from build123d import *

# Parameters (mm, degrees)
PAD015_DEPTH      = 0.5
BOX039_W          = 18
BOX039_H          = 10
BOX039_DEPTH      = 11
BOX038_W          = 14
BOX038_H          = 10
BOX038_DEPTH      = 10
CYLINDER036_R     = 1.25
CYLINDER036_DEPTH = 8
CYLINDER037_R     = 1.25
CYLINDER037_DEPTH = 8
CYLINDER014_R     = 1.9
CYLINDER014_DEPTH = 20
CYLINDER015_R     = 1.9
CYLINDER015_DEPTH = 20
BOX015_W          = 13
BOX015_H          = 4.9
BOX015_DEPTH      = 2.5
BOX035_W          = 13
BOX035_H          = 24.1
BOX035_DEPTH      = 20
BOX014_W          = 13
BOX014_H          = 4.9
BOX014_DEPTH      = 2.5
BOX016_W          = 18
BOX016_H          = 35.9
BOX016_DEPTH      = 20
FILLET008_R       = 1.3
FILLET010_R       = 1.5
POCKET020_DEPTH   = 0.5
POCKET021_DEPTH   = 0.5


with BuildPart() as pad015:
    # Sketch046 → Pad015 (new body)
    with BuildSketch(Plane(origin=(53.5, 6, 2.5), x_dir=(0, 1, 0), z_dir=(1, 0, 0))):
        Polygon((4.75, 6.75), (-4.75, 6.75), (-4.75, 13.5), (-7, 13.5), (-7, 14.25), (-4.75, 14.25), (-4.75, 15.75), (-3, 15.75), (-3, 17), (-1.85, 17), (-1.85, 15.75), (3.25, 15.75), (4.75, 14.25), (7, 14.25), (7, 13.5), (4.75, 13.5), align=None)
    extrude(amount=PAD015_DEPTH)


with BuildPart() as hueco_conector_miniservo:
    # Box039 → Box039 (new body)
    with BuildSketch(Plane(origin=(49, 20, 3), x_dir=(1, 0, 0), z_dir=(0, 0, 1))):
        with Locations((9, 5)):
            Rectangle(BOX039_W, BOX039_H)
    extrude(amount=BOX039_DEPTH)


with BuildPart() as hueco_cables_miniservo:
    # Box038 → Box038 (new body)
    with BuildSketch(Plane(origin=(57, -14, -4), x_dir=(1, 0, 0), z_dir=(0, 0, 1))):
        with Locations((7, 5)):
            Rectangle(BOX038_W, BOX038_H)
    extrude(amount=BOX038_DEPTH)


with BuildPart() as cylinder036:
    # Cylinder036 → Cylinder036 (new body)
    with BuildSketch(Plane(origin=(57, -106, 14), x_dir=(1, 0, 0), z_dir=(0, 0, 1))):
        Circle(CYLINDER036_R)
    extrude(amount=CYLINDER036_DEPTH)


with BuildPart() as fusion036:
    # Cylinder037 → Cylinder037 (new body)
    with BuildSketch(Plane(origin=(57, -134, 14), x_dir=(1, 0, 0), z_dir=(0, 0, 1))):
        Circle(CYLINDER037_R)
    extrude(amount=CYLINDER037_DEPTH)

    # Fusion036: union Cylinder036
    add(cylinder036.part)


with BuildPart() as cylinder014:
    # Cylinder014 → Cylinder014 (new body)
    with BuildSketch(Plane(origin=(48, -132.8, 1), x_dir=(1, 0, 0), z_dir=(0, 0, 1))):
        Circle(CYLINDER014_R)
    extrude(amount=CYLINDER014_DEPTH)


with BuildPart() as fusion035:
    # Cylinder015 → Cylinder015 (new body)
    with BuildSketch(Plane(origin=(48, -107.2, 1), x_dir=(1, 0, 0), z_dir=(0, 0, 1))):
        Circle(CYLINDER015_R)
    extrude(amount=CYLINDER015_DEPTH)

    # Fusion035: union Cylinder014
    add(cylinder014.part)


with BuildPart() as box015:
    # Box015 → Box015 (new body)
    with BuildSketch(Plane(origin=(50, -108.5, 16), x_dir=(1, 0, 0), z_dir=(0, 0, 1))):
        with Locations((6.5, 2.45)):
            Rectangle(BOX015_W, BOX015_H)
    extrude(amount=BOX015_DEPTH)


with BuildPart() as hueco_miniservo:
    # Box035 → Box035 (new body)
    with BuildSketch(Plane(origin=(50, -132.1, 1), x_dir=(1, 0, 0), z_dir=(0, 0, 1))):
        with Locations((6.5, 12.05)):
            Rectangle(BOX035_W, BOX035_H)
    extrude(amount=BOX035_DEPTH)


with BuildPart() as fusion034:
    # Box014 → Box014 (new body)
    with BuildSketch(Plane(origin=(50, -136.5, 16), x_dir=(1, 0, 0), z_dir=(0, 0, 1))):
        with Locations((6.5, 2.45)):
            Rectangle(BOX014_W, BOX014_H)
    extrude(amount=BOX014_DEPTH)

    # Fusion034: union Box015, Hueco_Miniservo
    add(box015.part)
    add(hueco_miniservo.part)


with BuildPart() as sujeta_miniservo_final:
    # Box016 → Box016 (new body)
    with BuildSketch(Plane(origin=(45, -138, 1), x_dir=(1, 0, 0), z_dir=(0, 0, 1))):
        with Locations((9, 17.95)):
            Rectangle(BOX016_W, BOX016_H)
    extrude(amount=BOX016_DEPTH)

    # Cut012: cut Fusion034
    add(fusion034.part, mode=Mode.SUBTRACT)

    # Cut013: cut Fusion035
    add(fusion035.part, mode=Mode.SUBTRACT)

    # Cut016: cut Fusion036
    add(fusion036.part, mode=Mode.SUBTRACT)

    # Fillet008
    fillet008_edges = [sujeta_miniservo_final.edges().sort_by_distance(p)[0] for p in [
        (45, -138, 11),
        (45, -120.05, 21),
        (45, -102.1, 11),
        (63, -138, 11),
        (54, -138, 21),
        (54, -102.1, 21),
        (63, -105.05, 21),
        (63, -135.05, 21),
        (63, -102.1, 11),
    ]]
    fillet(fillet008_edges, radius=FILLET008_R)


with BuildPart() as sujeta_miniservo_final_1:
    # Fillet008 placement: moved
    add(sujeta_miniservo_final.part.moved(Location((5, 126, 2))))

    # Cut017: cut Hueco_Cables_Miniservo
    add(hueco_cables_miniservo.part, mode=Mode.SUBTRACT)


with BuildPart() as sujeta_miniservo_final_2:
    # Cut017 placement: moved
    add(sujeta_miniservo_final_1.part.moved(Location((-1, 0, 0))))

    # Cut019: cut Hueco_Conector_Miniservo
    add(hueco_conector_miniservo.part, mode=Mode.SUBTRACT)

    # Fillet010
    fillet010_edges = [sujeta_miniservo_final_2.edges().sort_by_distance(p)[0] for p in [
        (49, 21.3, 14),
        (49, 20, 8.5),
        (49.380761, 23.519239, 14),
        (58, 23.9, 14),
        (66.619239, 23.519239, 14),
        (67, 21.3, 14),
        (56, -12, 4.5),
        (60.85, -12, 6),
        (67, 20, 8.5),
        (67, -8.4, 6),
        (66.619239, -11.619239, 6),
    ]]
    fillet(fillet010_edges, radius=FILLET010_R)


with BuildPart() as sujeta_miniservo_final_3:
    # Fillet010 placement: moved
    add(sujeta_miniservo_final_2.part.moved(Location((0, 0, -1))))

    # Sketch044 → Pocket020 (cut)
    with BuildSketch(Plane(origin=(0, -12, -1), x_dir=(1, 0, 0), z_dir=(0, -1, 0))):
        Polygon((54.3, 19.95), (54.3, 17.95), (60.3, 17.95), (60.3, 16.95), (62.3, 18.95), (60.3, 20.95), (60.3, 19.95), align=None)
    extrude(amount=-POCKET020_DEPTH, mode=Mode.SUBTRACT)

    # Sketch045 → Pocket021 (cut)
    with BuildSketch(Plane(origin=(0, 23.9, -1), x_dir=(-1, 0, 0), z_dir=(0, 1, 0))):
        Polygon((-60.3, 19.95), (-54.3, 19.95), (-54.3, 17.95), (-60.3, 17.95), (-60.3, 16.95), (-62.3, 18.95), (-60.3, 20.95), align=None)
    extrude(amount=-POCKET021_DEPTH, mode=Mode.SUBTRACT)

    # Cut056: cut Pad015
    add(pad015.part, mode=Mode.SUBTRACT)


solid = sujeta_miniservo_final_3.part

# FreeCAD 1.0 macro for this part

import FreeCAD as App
import Part
import Sketcher

V = App.Vector
Q = App.Units.Quantity


def edges_at(feature, points):
    """Names of the edges that pass closest to the given points."""
    edges = feature.Shape.Edges
    near = lambda p: min(range(len(edges)), key=lambda i: edges[i].distToShape(Part.Vertex(*p))[0])
    return sorted({f"Edge{near(p) + 1}" for p in points})

doc = App.newDocument("Part")
body = doc.addObject("PartDesign::Body", "Body")

# Sketch on YZ plane
sketch1 = body.newObject("Sketcher::SketchObject", "Sketch")
sketch1.AttachmentSupport = (doc.getObject("YZ_Plane"), [""])
sketch1.MapMode = "FlatFace"
sketch1.AttachmentOffset = App.Placement(V(0, 0, 53.5), App.Rotation())
sketch1.addGeometry([
    Part.LineSegment(V(1.2, 9.2, 0), V(10.8, 9.2, 0)),  # 0
    Part.LineSegment(V(10.8, 9.2, 0), V(10.8, 16, 0)),  # 1
    Part.LineSegment(V(10.8, 16, 0), V(13, 16, 0)),  # 2
    Part.LineSegment(V(13, 16, 0), V(13, 16.8, 0)),  # 3
    Part.LineSegment(V(13, 16.8, 0), V(10.8, 16.8, 0)),  # 4
    Part.LineSegment(V(10.8, 16.8, 0), V(9.2, 18.2, 0)),  # 5
    Part.LineSegment(V(9.2, 18.2, 0), V(4.2, 18.2, 0)),  # 6
    Part.LineSegment(V(4.2, 18.2, 0), V(4.2, 19.5, 0)),  # 7
    Part.LineSegment(V(4.2, 19.5, 0), V(3, 19.5, 0)),  # 8
    Part.LineSegment(V(3, 19.5, 0), V(3, 18.2, 0)),  # 9
    Part.LineSegment(V(3, 18.2, 0), V(1.2, 18.2, 0)),  # 10
    Part.LineSegment(V(1.2, 18.2, 0), V(1.2, 16.8, 0)),  # 11
    Part.LineSegment(V(1.2, 16.8, 0), V(-1, 16.8, 0)),  # 12
    Part.LineSegment(V(-1, 16.8, 0), V(-1, 16, 0)),  # 13
    Part.LineSegment(V(-1, 16, 0), V(1.2, 16, 0)),  # 14
    Part.LineSegment(V(1.2, 16, 0), V(1.2, 9.2, 0)),  # 15
], False)
sketch1.addConstraint([
    Sketcher.Constraint("Coincident", 0, 2, 1, 1),
    Sketcher.Constraint("Coincident", 1, 2, 2, 1),
    Sketcher.Constraint("Coincident", 2, 2, 3, 1),
    Sketcher.Constraint("Coincident", 3, 2, 4, 1),
    Sketcher.Constraint("Coincident", 4, 2, 5, 1),
    Sketcher.Constraint("Coincident", 5, 2, 6, 1),
    Sketcher.Constraint("Coincident", 6, 2, 7, 1),
    Sketcher.Constraint("Coincident", 7, 2, 8, 1),
    Sketcher.Constraint("Coincident", 8, 2, 9, 1),
    Sketcher.Constraint("Coincident", 9, 2, 10, 1),
    Sketcher.Constraint("Coincident", 10, 2, 11, 1),
    Sketcher.Constraint("Coincident", 11, 2, 12, 1),
    Sketcher.Constraint("Coincident", 12, 2, 13, 1),
    Sketcher.Constraint("Coincident", 13, 2, 14, 1),
    Sketcher.Constraint("Coincident", 14, 2, 15, 1),
    Sketcher.Constraint("Coincident", 15, 2, 0, 1),
    Sketcher.Constraint("Horizontal", 0),
    Sketcher.Constraint("Vertical", 1),
    Sketcher.Constraint("Horizontal", 2),
    Sketcher.Constraint("Vertical", 3),
    Sketcher.Constraint("Horizontal", 4),
    Sketcher.Constraint("Horizontal", 6),
    Sketcher.Constraint("Vertical", 7),
    Sketcher.Constraint("Horizontal", 8),
    Sketcher.Constraint("Vertical", 9),
    Sketcher.Constraint("Horizontal", 10),
    Sketcher.Constraint("Vertical", 11),
    Sketcher.Constraint("Horizontal", 12),
    Sketcher.Constraint("Vertical", 13),
    Sketcher.Constraint("Horizontal", 14),
    Sketcher.Constraint("Vertical", 15),
    Sketcher.Constraint("Horizontal", 6, 2, 9, 2),
    Sketcher.Constraint("Horizontal", 4, 2, 11, 2),
    Sketcher.Constraint("Horizontal", 2, 2, 13, 2),
    Sketcher.Constraint("Vertical", 1, 2, 4, 2),
    Sketcher.Constraint("Vertical", 11, 2, 14, 2),
    Sketcher.Constraint("Equal", 4, 12),
    Sketcher.Constraint("Angle", 5, Q("135 deg")),
    Sketcher.Constraint("DistanceX", 0, 1, 0, 2, 9.5),
    Sketcher.Constraint("DistanceX", 6, 2, 6, 1, 5.1),
    Sketcher.Constraint("DistanceY", 11, 2, 11, 1, 1.5),
    Sketcher.Constraint("DistanceY", -1, 1, 1, 2, 16.0),
    Sketcher.Constraint("DistanceX", -1, 1, 2, 2, 13.0),
    Sketcher.Constraint("DistanceX", -1, 1, 8, 2, 3.0),
    Sketcher.Constraint("DistanceX", 12, 2, -1, 1, 1.0),
    Sketcher.Constraint("DistanceY", 0, 2, 5, 2, 9.0),
    Sketcher.Constraint("DistanceY", 1, 1, 1, 2, 6.75),
    Sketcher.Constraint("DistanceY", 7, 1, 7, 2, 1.25),
])
pad1 = body.newObject("PartDesign::Pad", "Pad")
pad1.Profile = sketch1
pad1.Length = 0.5
body2 = doc.addObject("PartDesign::Body", "Body001")

# Sketch on XY plane
sketch2 = body2.newObject("Sketcher::SketchObject", "Sketch001")
sketch2.AttachmentSupport = (doc.getObject("XY_Plane001"), [""])
sketch2.MapMode = "FlatFace"
sketch2.AttachmentOffset = App.Placement(V(0, 0, 3), App.Rotation())
sketch2.addGeometry([
    Part.LineSegment(V(49, 30, 0), V(49, 20, 0)),
    Part.LineSegment(V(49, 20, 0), V(67, 20, 0)),
    Part.LineSegment(V(67, 20, 0), V(67, 30, 0)),
    Part.LineSegment(V(67, 30, 0), V(49, 30, 0)),
], False)
sketch2.addConstraint([
    Sketcher.Constraint("Coincident", 0, 2, 1, 1),
    Sketcher.Constraint("Coincident", 1, 2, 2, 1),
    Sketcher.Constraint("Coincident", 2, 2, 3, 1),
    Sketcher.Constraint("Coincident", 3, 2, 0, 1),
    Sketcher.Constraint("Vertical", 0),
    Sketcher.Constraint("Horizontal", 1),
    Sketcher.Constraint("Vertical", 2),
    Sketcher.Constraint("Horizontal", 3),
    Sketcher.Constraint("DistanceX", 1, 1, 1, 2, 18.0),
    Sketcher.Constraint("DistanceY", 0, 2, 0, 1, 10.0),
    Sketcher.Constraint("DistanceX", -1, 1, 0, 2, 49.0),
    Sketcher.Constraint("DistanceY", -1, 1, 0, 2, 20.0),
])
pad2 = body2.newObject("PartDesign::Pad", "Pad001")
pad2.Profile = sketch2
pad2.Length = 11
body3 = doc.addObject("PartDesign::Body", "Body002")

# Sketch on XY plane
sketch3 = body3.newObject("Sketcher::SketchObject", "Sketch002")
sketch3.AttachmentSupport = (doc.getObject("XY_Plane002"), [""])
sketch3.MapMode = "FlatFace"
sketch3.AttachmentOffset = App.Placement(V(0, 0, -4), App.Rotation())
sketch3.addGeometry([
    Part.LineSegment(V(57, -4, 0), V(57, -14, 0)),
    Part.LineSegment(V(57, -14, 0), V(71, -14, 0)),
    Part.LineSegment(V(71, -14, 0), V(71, -4, 0)),
    Part.LineSegment(V(71, -4, 0), V(57, -4, 0)),
], False)
sketch3.addConstraint([
    Sketcher.Constraint("Coincident", 0, 2, 1, 1),
    Sketcher.Constraint("Coincident", 1, 2, 2, 1),
    Sketcher.Constraint("Coincident", 2, 2, 3, 1),
    Sketcher.Constraint("Coincident", 3, 2, 0, 1),
    Sketcher.Constraint("Vertical", 0),
    Sketcher.Constraint("Horizontal", 1),
    Sketcher.Constraint("Vertical", 2),
    Sketcher.Constraint("Horizontal", 3),
    Sketcher.Constraint("DistanceX", 1, 1, 1, 2, 14.0),
    Sketcher.Constraint("DistanceY", 0, 2, 0, 1, 10.0),
    Sketcher.Constraint("DistanceX", -1, 1, 0, 2, 57.0),
    Sketcher.Constraint("DistanceY", 0, 2, -1, 1, 14.0),
])
pad3 = body3.newObject("PartDesign::Pad", "Pad002")
pad3.Profile = sketch3
pad3.Length = 10
body4 = doc.addObject("PartDesign::Body", "Body003")

# Sketch on XY plane
sketch4 = body4.newObject("Sketcher::SketchObject", "Sketch003")
sketch4.AttachmentSupport = (doc.getObject("XY_Plane003"), [""])
sketch4.MapMode = "FlatFace"
sketch4.AttachmentOffset = App.Placement(V(0, 0, 14), App.Rotation())
sketch4.addGeometry(Part.Circle(V(57, -106, 0), V(0, 0, 1), 1.2), False)
sketch4.addConstraint([
    Sketcher.Constraint("Diameter", 0, 2.5),
    Sketcher.Constraint("DistanceX", -1, 1, 0, 3, 57.0),
    Sketcher.Constraint("DistanceY", 0, 3, -1, 1, 106.0),
])
pad4 = body4.newObject("PartDesign::Pad", "Pad003")
pad4.Profile = sketch4
pad4.Length = 8
body5 = doc.addObject("PartDesign::Body", "Body004")
body5.AllowCompound = True

# Sketch on XY plane
sketch5 = body5.newObject("Sketcher::SketchObject", "Sketch004")
sketch5.AttachmentSupport = (doc.getObject("XY_Plane004"), [""])
sketch5.MapMode = "FlatFace"
sketch5.AttachmentOffset = App.Placement(V(0, 0, 14), App.Rotation())
sketch5.addGeometry(Part.Circle(V(57, -134, 0), V(0, 0, 1), 1.2), False)
sketch5.addConstraint([
    Sketcher.Constraint("Diameter", 0, 2.5),
    Sketcher.Constraint("DistanceX", -1, 1, 0, 3, 57.0),
    Sketcher.Constraint("DistanceY", 0, 3, -1, 1, 134.0),
])
pad5 = body5.newObject("PartDesign::Pad", "Pad004")
pad5.Profile = sketch5
pad5.Length = 8
doc.recompute()

boolean = body5.newObject("PartDesign::Boolean", "Boolean")
boolean.Type = "Fuse"
boolean.addObjects([body4])
body6 = doc.addObject("PartDesign::Body", "Body005")

# Sketch on XY plane
sketch6 = body6.newObject("Sketcher::SketchObject", "Sketch005")
sketch6.AttachmentSupport = (doc.getObject("XY_Plane005"), [""])
sketch6.MapMode = "FlatFace"
sketch6.AttachmentOffset = App.Placement(V(0, 0, 1), App.Rotation())
sketch6.addGeometry(Part.Circle(V(48, -132.8, 0), V(0, 0, 1), 1.9), False)
sketch6.addConstraint([
    Sketcher.Constraint("Diameter", 0, 3.8),
    Sketcher.Constraint("DistanceX", -1, 1, 0, 3, 48.0),
    Sketcher.Constraint("DistanceY", 0, 3, -1, 1, 132.8),
])
pad6 = body6.newObject("PartDesign::Pad", "Pad005")
pad6.Profile = sketch6
pad6.Length = 20
body7 = doc.addObject("PartDesign::Body", "Body006")
body7.AllowCompound = True

# Sketch on XY plane
sketch7 = body7.newObject("Sketcher::SketchObject", "Sketch006")
sketch7.AttachmentSupport = (doc.getObject("XY_Plane006"), [""])
sketch7.MapMode = "FlatFace"
sketch7.AttachmentOffset = App.Placement(V(0, 0, 1), App.Rotation())
sketch7.addGeometry(Part.Circle(V(48, -107.2, 0), V(0, 0, 1), 1.9), False)
sketch7.addConstraint([
    Sketcher.Constraint("Diameter", 0, 3.8),
    Sketcher.Constraint("DistanceX", -1, 1, 0, 3, 48.0),
    Sketcher.Constraint("DistanceY", 0, 3, -1, 1, 107.2),
])
pad7 = body7.newObject("PartDesign::Pad", "Pad006")
pad7.Profile = sketch7
pad7.Length = 20
doc.recompute()

boolean2 = body7.newObject("PartDesign::Boolean", "Boolean001")
boolean2.Type = "Fuse"
boolean2.addObjects([body6])
body8 = doc.addObject("PartDesign::Body", "Body007")

# Sketch on XY plane
sketch8 = body8.newObject("Sketcher::SketchObject", "Sketch007")
sketch8.AttachmentSupport = (doc.getObject("XY_Plane007"), [""])
sketch8.MapMode = "FlatFace"
sketch8.AttachmentOffset = App.Placement(V(0, 0, 16), App.Rotation())
sketch8.addGeometry([
    Part.LineSegment(V(50, -103.6, 0), V(50, -108.5, 0)),
    Part.LineSegment(V(50, -108.5, 0), V(63, -108.5, 0)),
    Part.LineSegment(V(63, -108.5, 0), V(63, -103.6, 0)),
    Part.LineSegment(V(63, -103.6, 0), V(50, -103.6, 0)),
], False)
sketch8.addConstraint([
    Sketcher.Constraint("Coincident", 0, 2, 1, 1),
    Sketcher.Constraint("Coincident", 1, 2, 2, 1),
    Sketcher.Constraint("Coincident", 2, 2, 3, 1),
    Sketcher.Constraint("Coincident", 3, 2, 0, 1),
    Sketcher.Constraint("Vertical", 0),
    Sketcher.Constraint("Horizontal", 1),
    Sketcher.Constraint("Vertical", 2),
    Sketcher.Constraint("Horizontal", 3),
    Sketcher.Constraint("DistanceX", 1, 1, 1, 2, 13.0),
    Sketcher.Constraint("DistanceY", 0, 2, 0, 1, 4.9),
    Sketcher.Constraint("DistanceX", -1, 1, 0, 2, 50.0),
    Sketcher.Constraint("DistanceY", 0, 2, -1, 1, 108.5),
])
pad8 = body8.newObject("PartDesign::Pad", "Pad007")
pad8.Profile = sketch8
pad8.Length = 2.5
body9 = doc.addObject("PartDesign::Body", "Body008")

# Sketch on XY plane
sketch9 = body9.newObject("Sketcher::SketchObject", "Sketch008")
sketch9.AttachmentSupport = (doc.getObject("XY_Plane008"), [""])
sketch9.MapMode = "FlatFace"
sketch9.AttachmentOffset = App.Placement(V(0, 0, 1), App.Rotation())
sketch9.addGeometry([
    Part.LineSegment(V(50, -108, 0), V(50, -132, 0)),
    Part.LineSegment(V(50, -132, 0), V(63, -132, 0)),
    Part.LineSegment(V(63, -132, 0), V(63, -108, 0)),
    Part.LineSegment(V(63, -108, 0), V(50, -108, 0)),
], False)
sketch9.addConstraint([
    Sketcher.Constraint("Coincident", 0, 2, 1, 1),
    Sketcher.Constraint("Coincident", 1, 2, 2, 1),
    Sketcher.Constraint("Coincident", 2, 2, 3, 1),
    Sketcher.Constraint("Coincident", 3, 2, 0, 1),
    Sketcher.Constraint("Vertical", 0),
    Sketcher.Constraint("Horizontal", 1),
    Sketcher.Constraint("Vertical", 2),
    Sketcher.Constraint("Horizontal", 3),
    Sketcher.Constraint("DistanceX", 1, 1, 1, 2, 13.0),
    Sketcher.Constraint("DistanceY", 0, 2, 0, 1, 24.1),
    Sketcher.Constraint("DistanceX", -1, 1, 0, 2, 50.0),
    Sketcher.Constraint("DistanceY", 2, 2, -1, 1, 108.0),
])
pad9 = body9.newObject("PartDesign::Pad", "Pad008")
pad9.Profile = sketch9
pad9.Length = 20
body10 = doc.addObject("PartDesign::Body", "Body009")
body10.AllowCompound = True

# Sketch on XY plane
sketch10 = body10.newObject("Sketcher::SketchObject", "Sketch009")
sketch10.AttachmentSupport = (doc.getObject("XY_Plane009"), [""])
sketch10.MapMode = "FlatFace"
sketch10.AttachmentOffset = App.Placement(V(0, 0, 16), App.Rotation())
sketch10.addGeometry([
    Part.LineSegment(V(50, -131.6, 0), V(50, -136.5, 0)),
    Part.LineSegment(V(50, -136.5, 0), V(63, -136.5, 0)),
    Part.LineSegment(V(63, -136.5, 0), V(63, -131.6, 0)),
    Part.LineSegment(V(63, -131.6, 0), V(50, -131.6, 0)),
], False)
sketch10.addConstraint([
    Sketcher.Constraint("Coincident", 0, 2, 1, 1),
    Sketcher.Constraint("Coincident", 1, 2, 2, 1),
    Sketcher.Constraint("Coincident", 2, 2, 3, 1),
    Sketcher.Constraint("Coincident", 3, 2, 0, 1),
    Sketcher.Constraint("Vertical", 0),
    Sketcher.Constraint("Horizontal", 1),
    Sketcher.Constraint("Vertical", 2),
    Sketcher.Constraint("Horizontal", 3),
    Sketcher.Constraint("DistanceX", 1, 1, 1, 2, 13.0),
    Sketcher.Constraint("DistanceY", 0, 2, 0, 1, 4.9),
    Sketcher.Constraint("DistanceX", -1, 1, 0, 2, 50.0),
    Sketcher.Constraint("DistanceY", 0, 2, -1, 1, 136.5),
])
pad10 = body10.newObject("PartDesign::Pad", "Pad009")
pad10.Profile = sketch10
pad10.Length = 2.5
doc.recompute()

boolean3 = body10.newObject("PartDesign::Boolean", "Boolean002")
boolean3.Type = "Fuse"
boolean3.addObjects([body8])
doc.recompute()

boolean4 = body10.newObject("PartDesign::Boolean", "Boolean003")
boolean4.Type = "Fuse"
boolean4.addObjects([body9])
body11 = doc.addObject("PartDesign::Body", "Body010")

# Sketch on XY plane
sketch11 = body11.newObject("Sketcher::SketchObject", "Sketch010")
sketch11.AttachmentSupport = (doc.getObject("XY_Plane010"), [""])
sketch11.MapMode = "FlatFace"
sketch11.AttachmentOffset = App.Placement(V(0, 0, 1), App.Rotation())
sketch11.addGeometry([
    Part.LineSegment(V(45, -102, 0), V(45, -138, 0)),
    Part.LineSegment(V(45, -138, 0), V(63, -138, 0)),
    Part.LineSegment(V(63, -138, 0), V(63, -102, 0)),
    Part.LineSegment(V(63, -102, 0), V(45, -102, 0)),
], False)
sketch11.addConstraint([
    Sketcher.Constraint("Coincident", 0, 2, 1, 1),
    Sketcher.Constraint("Coincident", 1, 2, 2, 1),
    Sketcher.Constraint("Coincident", 2, 2, 3, 1),
    Sketcher.Constraint("Coincident", 3, 2, 0, 1),
    Sketcher.Constraint("Vertical", 0),
    Sketcher.Constraint("Horizontal", 1),
    Sketcher.Constraint("Vertical", 2),
    Sketcher.Constraint("Horizontal", 3),
    Sketcher.Constraint("DistanceX", 1, 1, 1, 2, 18.0),
    Sketcher.Constraint("DistanceY", 0, 2, 0, 1, 35.9),
    Sketcher.Constraint("DistanceX", -1, 1, 0, 2, 45.0),
    Sketcher.Constraint("DistanceY", 0, 2, -1, 1, 138.0),
])
pad11 = body11.newObject("PartDesign::Pad", "Pad010")
pad11.Profile = sketch11
pad11.Length = 20
doc.recompute()

boolean5 = body11.newObject("PartDesign::Boolean", "Boolean004")
boolean5.Type = "Cut"
boolean5.addObjects([body10])
doc.recompute()

boolean6 = body11.newObject("PartDesign::Boolean", "Boolean005")
boolean6.Type = "Cut"
boolean6.addObjects([body7])
doc.recompute()

boolean7 = body11.newObject("PartDesign::Boolean", "Boolean006")
boolean7.Type = "Cut"
boolean7.addObjects([body5])
doc.recompute()

fillet = body11.newObject("PartDesign::Fillet", "Fillet")
fillet.Base = (boolean7, edges_at(boolean7, [
    (45, -138, 11),
    (45, -120.05, 21),
    (45, -102.1, 11),
    (63, -138, 11),
    (54, -138, 21),
    (54, -102.1, 21),
    (63, -105.05, 21),
    (63, -135.05, 21),
    (63, -102.1, 11),
]))
fillet.Radius = 1.3
body12 = doc.addObject("PartDesign::Body", "Body011")
doc.recompute()

body11.Placement = App.Placement(V(5, 126, 2), App.Rotation(V(0, 0, 1), 0))
boolean8 = body12.newObject("PartDesign::Boolean", "Boolean007")
boolean8.Type = "Fuse"
boolean8.addObjects([body11])
doc.recompute()

boolean9 = body12.newObject("PartDesign::Boolean", "Boolean008")
boolean9.Type = "Cut"
boolean9.addObjects([body3])
body13 = doc.addObject("PartDesign::Body", "Body012")
doc.recompute()

body12.Placement = App.Placement(V(-1, 0, 0), App.Rotation(V(0, 0, 1), 0))
boolean10 = body13.newObject("PartDesign::Boolean", "Boolean009")
boolean10.Type = "Fuse"
boolean10.addObjects([body12])
doc.recompute()

boolean11 = body13.newObject("PartDesign::Boolean", "Boolean010")
boolean11.Type = "Cut"
boolean11.addObjects([body2])
doc.recompute()

fillet2 = body13.newObject("PartDesign::Fillet", "Fillet001")
fillet2.Base = (boolean11, edges_at(boolean11, [
    (49, 21.3, 14),
    (49, 20, 8.5),
    (49.381, 23.519, 14),
    (58, 23.9, 14),
    (66.619, 23.519, 14),
    (67, 21.3, 14),
    (56, -12, 4.5),
    (60.85, -12, 6),
    (67, 20, 8.5),
    (67, -8.4, 6),
    (66.619, -11.619, 6),
]))
fillet2.Radius = 1.5
body14 = doc.addObject("PartDesign::Body", "Body013")
doc.recompute()

body13.Placement = App.Placement(V(0, 0, -1), App.Rotation(V(0, 0, 1), 0))
boolean12 = body14.newObject("PartDesign::Boolean", "Boolean011")
boolean12.Type = "Fuse"
boolean12.addObjects([body13])

# Sketch on XZ plane
sketch12 = body14.newObject("Sketcher::SketchObject", "Sketch011")
sketch12.AttachmentSupport = (doc.getObject("XZ_Plane013"), [""])
sketch12.MapMode = "FlatFace"
sketch12.AttachmentOffset = App.Placement(V(0, 0, 12), App.Rotation())
sketch12.addGeometry([
    Part.LineSegment(V(54.3, 18.9, 0), V(54.3, 16.9, 0)),  # 0
    Part.LineSegment(V(54.3, 16.9, 0), V(60.3, 16.9, 0)),  # 1
    Part.LineSegment(V(60.3, 16.9, 0), V(60.3, 15.9, 0)),  # 2
    Part.LineSegment(V(60.3, 15.9, 0), V(62.3, 17.9, 0)),  # 3
    Part.LineSegment(V(62.3, 17.9, 0), V(60.3, 19.9, 0)),  # 4
    Part.LineSegment(V(60.3, 19.9, 0), V(60.3, 18.9, 0)),  # 5
    Part.LineSegment(V(60.3, 18.9, 0), V(54.3, 18.9, 0)),  # 6
], False)
sketch12.addConstraint([
    Sketcher.Constraint("Coincident", 0, 2, 1, 1),
    Sketcher.Constraint("Coincident", 1, 2, 2, 1),
    Sketcher.Constraint("Coincident", 2, 2, 3, 1),
    Sketcher.Constraint("Coincident", 3, 2, 4, 1),
    Sketcher.Constraint("Coincident", 4, 2, 5, 1),
    Sketcher.Constraint("Coincident", 5, 2, 6, 1),
    Sketcher.Constraint("Coincident", 6, 2, 0, 1),
    Sketcher.Constraint("Vertical", 0),
    Sketcher.Constraint("Horizontal", 1),
    Sketcher.Constraint("Vertical", 2),
    Sketcher.Constraint("Vertical", 5),
    Sketcher.Constraint("Horizontal", 6),
    Sketcher.Constraint("Perpendicular", 3, 4),
    Sketcher.Constraint("Vertical", 2, 2, 4, 2),
    Sketcher.Constraint("Equal", 2, 5),
    Sketcher.Constraint("Equal", 3, 4),
    Sketcher.Constraint("DistanceX", 1, 1, 1, 2, 6.0),
    Sketcher.Constraint("DistanceY", 0, 2, 0, 1, 2.0),
    Sketcher.Constraint("DistanceY", 2, 2, 2, 1, 1.0),
    Sketcher.Constraint("DistanceX", -1, 1, 0, 2, 54.3),
    Sketcher.Constraint("DistanceY", -1, 1, 0, 2, 16.95),
])
pocket1 = body14.newObject("PartDesign::Pocket", "Pocket")
pocket1.Profile = sketch12
pocket1.Length = 0.5

# Sketch on XZ plane
sketch13 = body14.newObject("Sketcher::SketchObject", "Sketch012")
sketch13.AttachmentSupport = (doc.getObject("XZ_Plane013"), [""])
sketch13.MapMode = "FlatFace"
sketch13.AttachmentOffset = App.Placement(V(0, 0, -23.9), App.Rotation())
sketch13.addGeometry([
    Part.LineSegment(V(54.3, 18.9, 0), V(60.3, 18.9, 0)),  # 0
    Part.LineSegment(V(60.3, 18.9, 0), V(60.3, 19.9, 0)),  # 1
    Part.LineSegment(V(60.3, 19.9, 0), V(62.3, 17.9, 0)),  # 2
    Part.LineSegment(V(62.3, 17.9, 0), V(60.3, 15.9, 0)),  # 3
    Part.LineSegment(V(60.3, 15.9, 0), V(60.3, 16.9, 0)),  # 4
    Part.LineSegment(V(60.3, 16.9, 0), V(54.3, 16.9, 0)),  # 5
    Part.LineSegment(V(54.3, 16.9, 0), V(54.3, 18.9, 0)),  # 6
], False)
sketch13.addConstraint([
    Sketcher.Constraint("Coincident", 0, 2, 1, 1),
    Sketcher.Constraint("Coincident", 1, 2, 2, 1),
    Sketcher.Constraint("Coincident", 2, 2, 3, 1),
    Sketcher.Constraint("Coincident", 3, 2, 4, 1),
    Sketcher.Constraint("Coincident", 4, 2, 5, 1),
    Sketcher.Constraint("Coincident", 5, 2, 6, 1),
    Sketcher.Constraint("Coincident", 6, 2, 0, 1),
    Sketcher.Constraint("Horizontal", 0),
    Sketcher.Constraint("Vertical", 1),
    Sketcher.Constraint("Vertical", 4),
    Sketcher.Constraint("Horizontal", 5),
    Sketcher.Constraint("Vertical", 6),
    Sketcher.Constraint("Perpendicular", 2, 3),
    Sketcher.Constraint("Vertical", 1, 2, 3, 2),
    Sketcher.Constraint("Equal", 1, 4),
    Sketcher.Constraint("Equal", 2, 3),
    Sketcher.Constraint("DistanceX", 0, 1, 0, 2, 6.0),
    Sketcher.Constraint("DistanceY", 1, 1, 1, 2, 1.0),
    Sketcher.Constraint("DistanceY", 6, 1, 6, 2, 2.0),
    Sketcher.Constraint("DistanceX", -1, 1, 0, 2, 60.3),
    Sketcher.Constraint("DistanceY", -1, 1, 0, 2, 18.95),
])
pocket2 = body14.newObject("PartDesign::Pocket", "Pocket001")
pocket2.Profile = sketch13
pocket2.Length = 0.5
pocket2.Reversed = True
doc.recompute()

boolean13 = body14.newObject("PartDesign::Boolean", "Boolean012")
boolean13.Type = "Cut"
boolean13.addObjects([body])

doc.recompute()
